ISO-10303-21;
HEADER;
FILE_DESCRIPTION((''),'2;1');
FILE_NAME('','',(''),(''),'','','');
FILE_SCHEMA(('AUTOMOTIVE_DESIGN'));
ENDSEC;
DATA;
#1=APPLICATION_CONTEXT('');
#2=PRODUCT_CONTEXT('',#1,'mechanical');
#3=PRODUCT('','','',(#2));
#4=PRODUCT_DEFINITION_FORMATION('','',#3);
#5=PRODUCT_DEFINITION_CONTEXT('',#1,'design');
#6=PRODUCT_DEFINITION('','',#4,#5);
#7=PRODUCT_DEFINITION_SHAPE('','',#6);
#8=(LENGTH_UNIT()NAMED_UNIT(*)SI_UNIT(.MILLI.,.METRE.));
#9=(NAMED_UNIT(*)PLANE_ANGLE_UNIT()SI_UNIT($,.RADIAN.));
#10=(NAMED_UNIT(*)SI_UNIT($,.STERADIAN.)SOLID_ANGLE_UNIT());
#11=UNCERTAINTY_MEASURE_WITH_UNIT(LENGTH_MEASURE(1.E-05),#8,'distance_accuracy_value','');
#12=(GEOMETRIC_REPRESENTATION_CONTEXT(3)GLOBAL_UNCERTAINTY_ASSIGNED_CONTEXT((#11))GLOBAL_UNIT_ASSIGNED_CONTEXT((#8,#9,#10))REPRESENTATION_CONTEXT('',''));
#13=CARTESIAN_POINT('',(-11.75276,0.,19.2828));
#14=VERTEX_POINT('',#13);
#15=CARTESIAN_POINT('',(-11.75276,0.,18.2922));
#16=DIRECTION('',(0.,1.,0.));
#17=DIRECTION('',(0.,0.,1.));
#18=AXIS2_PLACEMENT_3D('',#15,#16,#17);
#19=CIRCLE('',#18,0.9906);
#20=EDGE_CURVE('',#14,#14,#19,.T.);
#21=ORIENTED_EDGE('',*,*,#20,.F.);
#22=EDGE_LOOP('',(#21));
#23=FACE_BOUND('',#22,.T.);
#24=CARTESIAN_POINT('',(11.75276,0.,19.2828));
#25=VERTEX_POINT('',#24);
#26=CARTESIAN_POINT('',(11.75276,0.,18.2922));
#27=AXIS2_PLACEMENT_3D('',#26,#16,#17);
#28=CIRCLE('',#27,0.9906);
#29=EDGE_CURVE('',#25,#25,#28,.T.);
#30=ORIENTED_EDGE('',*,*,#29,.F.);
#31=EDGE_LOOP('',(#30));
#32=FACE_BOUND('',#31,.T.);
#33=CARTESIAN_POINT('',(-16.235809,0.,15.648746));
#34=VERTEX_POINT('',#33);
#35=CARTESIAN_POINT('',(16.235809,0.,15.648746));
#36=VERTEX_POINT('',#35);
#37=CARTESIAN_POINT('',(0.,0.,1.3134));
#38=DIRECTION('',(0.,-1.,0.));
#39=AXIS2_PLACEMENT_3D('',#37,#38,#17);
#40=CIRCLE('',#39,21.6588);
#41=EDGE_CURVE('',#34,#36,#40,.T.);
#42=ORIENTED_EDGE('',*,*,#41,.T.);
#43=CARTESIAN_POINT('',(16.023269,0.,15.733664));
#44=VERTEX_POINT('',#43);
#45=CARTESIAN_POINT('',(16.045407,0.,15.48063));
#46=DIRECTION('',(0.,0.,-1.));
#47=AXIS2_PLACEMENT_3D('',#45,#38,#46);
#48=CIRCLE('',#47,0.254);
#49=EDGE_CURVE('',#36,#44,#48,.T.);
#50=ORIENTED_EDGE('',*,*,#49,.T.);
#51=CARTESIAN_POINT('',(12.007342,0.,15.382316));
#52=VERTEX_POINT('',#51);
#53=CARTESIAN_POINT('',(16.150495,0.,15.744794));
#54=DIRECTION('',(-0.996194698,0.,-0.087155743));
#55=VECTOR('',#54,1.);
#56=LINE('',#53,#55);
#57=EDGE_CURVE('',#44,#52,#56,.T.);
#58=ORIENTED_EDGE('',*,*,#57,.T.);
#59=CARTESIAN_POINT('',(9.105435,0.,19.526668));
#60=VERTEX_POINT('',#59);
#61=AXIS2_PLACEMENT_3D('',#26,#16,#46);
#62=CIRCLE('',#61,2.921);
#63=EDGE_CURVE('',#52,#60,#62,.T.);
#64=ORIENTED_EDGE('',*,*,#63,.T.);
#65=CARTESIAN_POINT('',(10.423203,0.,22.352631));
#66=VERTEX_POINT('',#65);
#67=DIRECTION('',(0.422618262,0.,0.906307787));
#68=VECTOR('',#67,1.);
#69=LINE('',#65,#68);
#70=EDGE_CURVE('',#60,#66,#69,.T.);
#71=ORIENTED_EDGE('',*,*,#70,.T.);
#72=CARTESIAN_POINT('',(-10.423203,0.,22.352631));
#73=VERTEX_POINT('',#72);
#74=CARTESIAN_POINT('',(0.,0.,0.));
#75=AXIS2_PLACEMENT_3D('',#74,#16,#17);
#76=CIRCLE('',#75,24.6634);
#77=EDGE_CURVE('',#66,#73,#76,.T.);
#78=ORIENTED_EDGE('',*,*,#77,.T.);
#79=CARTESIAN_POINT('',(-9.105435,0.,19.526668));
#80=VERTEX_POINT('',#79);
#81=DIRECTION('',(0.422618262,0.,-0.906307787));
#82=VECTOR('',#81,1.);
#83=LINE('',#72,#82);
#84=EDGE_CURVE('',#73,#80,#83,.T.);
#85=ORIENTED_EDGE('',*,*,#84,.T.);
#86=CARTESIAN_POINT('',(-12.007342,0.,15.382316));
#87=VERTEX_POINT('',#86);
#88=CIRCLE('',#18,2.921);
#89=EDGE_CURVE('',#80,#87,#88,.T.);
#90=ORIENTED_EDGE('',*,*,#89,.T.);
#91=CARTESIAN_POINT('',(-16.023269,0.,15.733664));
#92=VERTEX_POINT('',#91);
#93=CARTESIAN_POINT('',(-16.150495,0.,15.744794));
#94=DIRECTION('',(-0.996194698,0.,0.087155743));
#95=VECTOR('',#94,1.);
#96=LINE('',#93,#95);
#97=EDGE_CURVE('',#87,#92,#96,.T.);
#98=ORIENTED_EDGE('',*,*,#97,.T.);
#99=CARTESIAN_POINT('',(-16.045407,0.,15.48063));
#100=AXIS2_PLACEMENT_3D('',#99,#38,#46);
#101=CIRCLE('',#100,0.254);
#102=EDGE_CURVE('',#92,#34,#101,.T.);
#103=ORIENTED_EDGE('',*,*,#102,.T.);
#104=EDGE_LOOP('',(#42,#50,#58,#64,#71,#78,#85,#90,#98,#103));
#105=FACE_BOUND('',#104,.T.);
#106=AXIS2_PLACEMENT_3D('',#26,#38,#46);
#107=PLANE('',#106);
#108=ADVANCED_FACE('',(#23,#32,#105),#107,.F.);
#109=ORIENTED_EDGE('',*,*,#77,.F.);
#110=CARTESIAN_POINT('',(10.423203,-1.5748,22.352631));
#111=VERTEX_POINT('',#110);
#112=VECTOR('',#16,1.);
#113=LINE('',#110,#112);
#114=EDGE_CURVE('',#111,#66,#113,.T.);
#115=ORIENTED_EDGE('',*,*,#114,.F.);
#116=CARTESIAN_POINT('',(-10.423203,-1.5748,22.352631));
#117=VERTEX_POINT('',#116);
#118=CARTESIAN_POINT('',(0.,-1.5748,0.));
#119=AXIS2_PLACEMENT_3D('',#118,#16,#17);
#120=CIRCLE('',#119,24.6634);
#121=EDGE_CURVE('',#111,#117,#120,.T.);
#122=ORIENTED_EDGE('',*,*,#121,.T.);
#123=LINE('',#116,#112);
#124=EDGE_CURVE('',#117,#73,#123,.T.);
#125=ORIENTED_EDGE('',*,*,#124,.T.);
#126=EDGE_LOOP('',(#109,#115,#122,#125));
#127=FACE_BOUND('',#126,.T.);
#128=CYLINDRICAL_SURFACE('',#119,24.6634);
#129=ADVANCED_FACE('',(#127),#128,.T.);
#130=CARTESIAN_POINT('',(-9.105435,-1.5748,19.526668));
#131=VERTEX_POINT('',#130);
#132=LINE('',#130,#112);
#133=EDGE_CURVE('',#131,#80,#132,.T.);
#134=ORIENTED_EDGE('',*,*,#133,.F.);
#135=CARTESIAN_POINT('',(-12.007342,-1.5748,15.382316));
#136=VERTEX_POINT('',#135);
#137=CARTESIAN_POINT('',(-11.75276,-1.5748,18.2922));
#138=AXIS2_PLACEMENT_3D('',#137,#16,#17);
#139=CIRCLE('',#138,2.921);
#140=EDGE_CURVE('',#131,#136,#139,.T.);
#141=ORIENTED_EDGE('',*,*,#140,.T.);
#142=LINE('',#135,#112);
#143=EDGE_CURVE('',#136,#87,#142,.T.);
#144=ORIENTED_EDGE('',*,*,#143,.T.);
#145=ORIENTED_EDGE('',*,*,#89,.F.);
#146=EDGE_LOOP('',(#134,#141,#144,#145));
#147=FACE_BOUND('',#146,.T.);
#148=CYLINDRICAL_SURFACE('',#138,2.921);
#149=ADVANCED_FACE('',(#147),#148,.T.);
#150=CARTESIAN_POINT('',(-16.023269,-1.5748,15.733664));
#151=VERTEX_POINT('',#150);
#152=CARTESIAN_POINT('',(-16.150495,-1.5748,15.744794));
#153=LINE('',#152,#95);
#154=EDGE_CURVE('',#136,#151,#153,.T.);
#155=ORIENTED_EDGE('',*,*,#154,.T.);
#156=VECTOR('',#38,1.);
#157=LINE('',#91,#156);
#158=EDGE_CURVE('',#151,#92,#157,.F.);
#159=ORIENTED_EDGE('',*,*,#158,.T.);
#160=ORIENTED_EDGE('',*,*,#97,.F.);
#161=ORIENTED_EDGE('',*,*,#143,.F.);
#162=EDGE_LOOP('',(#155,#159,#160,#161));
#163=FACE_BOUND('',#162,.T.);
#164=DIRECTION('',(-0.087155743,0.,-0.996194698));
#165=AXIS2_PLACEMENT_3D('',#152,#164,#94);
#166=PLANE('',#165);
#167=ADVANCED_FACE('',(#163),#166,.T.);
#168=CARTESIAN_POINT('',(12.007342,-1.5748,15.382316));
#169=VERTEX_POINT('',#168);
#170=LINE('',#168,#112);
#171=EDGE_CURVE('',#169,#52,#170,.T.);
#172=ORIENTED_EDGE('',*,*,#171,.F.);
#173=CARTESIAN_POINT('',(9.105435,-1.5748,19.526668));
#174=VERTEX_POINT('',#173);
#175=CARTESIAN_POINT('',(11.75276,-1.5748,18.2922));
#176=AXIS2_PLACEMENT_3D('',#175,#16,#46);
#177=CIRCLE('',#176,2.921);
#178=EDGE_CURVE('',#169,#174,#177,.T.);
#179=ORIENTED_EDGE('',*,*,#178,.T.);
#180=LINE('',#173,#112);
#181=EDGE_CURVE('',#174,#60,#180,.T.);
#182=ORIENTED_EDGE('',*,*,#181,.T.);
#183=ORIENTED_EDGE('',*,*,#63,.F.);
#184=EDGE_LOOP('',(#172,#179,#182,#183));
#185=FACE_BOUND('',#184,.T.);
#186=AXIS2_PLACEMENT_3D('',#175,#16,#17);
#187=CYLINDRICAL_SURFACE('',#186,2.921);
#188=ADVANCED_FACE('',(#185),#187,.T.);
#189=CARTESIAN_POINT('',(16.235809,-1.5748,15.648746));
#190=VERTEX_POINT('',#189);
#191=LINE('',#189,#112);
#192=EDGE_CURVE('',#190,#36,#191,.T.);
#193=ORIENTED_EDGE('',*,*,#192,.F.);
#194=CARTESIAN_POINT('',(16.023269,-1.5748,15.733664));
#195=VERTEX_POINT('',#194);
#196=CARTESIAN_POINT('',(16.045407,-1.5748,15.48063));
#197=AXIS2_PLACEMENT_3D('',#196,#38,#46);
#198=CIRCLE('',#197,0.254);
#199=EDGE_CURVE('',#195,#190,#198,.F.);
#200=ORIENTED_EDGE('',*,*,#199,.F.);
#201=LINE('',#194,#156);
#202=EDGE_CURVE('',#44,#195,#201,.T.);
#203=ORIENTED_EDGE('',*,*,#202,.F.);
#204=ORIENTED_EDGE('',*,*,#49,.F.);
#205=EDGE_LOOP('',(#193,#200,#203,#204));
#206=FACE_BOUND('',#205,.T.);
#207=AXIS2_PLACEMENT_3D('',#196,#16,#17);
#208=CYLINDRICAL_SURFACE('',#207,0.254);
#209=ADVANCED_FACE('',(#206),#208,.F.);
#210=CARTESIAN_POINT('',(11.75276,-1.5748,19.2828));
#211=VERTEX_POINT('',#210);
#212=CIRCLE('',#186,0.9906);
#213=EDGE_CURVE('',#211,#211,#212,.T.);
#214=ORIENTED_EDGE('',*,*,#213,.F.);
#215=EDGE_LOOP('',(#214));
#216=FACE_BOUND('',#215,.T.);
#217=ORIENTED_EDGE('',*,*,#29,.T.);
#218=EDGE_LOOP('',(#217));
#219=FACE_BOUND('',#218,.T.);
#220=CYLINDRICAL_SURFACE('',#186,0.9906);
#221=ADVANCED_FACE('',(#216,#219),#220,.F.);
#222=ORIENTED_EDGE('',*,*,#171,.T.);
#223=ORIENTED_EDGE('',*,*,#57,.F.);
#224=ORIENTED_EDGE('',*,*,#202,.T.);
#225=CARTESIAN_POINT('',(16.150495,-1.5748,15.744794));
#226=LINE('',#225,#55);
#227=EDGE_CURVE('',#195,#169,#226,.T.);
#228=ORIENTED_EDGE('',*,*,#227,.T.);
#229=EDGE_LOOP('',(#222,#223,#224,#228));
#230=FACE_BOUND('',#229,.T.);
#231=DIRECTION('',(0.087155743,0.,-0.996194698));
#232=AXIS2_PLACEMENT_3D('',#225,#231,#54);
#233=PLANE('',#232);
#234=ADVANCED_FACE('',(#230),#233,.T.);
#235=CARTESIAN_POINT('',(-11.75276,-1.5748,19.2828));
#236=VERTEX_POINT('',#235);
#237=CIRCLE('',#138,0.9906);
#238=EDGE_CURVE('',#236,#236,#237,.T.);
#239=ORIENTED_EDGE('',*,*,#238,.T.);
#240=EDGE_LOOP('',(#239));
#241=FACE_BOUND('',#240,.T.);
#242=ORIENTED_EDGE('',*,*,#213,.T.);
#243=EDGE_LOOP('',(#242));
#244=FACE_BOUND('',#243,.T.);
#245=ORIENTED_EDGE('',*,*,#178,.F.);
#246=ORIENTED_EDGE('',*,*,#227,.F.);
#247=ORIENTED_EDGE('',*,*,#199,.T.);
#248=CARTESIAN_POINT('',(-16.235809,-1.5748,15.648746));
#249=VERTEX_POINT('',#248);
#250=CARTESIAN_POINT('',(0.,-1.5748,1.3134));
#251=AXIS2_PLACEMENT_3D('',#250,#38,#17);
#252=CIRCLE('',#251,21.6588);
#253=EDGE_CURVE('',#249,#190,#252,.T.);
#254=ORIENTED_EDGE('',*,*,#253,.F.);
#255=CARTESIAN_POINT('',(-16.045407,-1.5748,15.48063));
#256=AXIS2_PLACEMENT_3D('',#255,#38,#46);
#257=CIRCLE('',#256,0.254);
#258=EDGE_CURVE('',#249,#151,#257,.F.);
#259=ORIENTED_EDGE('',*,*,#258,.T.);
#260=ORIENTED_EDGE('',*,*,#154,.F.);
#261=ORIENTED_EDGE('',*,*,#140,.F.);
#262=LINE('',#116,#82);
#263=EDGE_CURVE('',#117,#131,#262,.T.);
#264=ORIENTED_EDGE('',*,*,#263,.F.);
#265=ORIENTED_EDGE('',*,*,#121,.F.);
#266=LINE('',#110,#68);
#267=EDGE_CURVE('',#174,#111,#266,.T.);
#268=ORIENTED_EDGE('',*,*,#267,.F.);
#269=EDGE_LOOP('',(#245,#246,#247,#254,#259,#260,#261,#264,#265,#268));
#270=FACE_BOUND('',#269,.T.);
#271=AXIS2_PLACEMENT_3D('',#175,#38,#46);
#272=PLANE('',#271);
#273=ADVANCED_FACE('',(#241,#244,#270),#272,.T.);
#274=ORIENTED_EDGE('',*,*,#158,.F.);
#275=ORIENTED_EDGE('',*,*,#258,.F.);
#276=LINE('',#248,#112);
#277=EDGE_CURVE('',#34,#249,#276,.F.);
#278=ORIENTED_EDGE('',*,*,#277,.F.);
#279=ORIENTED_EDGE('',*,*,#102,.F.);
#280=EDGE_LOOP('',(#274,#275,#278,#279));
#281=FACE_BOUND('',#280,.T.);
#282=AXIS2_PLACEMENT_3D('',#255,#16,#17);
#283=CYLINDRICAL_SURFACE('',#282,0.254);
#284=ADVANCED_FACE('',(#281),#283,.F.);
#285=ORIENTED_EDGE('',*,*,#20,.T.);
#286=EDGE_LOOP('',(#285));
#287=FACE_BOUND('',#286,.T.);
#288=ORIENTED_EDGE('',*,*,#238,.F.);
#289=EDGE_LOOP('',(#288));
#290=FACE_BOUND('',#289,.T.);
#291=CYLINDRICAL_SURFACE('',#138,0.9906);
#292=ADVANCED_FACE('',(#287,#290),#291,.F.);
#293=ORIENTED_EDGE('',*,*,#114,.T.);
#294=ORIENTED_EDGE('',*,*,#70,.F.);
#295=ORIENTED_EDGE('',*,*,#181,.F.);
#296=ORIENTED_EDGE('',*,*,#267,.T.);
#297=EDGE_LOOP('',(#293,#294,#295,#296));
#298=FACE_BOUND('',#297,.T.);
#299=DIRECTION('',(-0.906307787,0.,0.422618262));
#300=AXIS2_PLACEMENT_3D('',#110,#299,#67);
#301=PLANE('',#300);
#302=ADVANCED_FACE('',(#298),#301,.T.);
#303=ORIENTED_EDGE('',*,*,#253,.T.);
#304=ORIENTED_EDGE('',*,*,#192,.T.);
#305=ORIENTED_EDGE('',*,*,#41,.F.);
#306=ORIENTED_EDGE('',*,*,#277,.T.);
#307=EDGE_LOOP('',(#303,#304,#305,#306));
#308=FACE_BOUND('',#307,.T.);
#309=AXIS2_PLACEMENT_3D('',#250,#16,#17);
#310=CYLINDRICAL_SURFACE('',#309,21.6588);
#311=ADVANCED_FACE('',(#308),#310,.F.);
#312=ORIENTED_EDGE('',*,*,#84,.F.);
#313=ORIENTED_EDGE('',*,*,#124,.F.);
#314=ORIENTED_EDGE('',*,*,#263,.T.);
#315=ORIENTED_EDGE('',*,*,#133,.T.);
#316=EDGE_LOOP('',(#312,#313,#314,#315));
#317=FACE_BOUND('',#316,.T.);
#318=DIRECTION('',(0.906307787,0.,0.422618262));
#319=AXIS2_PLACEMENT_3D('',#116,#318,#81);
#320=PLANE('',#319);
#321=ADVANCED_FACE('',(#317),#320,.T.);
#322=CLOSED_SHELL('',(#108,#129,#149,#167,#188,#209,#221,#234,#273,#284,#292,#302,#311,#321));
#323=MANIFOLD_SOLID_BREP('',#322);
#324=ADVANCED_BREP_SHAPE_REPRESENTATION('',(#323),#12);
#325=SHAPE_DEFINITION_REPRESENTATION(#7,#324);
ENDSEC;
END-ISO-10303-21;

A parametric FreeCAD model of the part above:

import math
import FreeCAD as App
import Part
import Sketcher
from FreeCAD import Vector
Q = App.Units.Quantity


def edges_at(feature, points):
    """Names of the edges that pass closest to the given points."""
    edges = feature.Shape.Edges
    near = lambda p: min(range(len(edges)), key=lambda i: edges[i].distToShape(Part.Vertex(*p))[0])
    return sorted({f"Edge{near(p) + 1}" for p in points})

doc = App.newDocument("Part")
params = doc.addObject("Spreadsheet::Sheet", "Params")
for row, (alias, value) in enumerate([
    ("sketch1_diameter", "0.078 in"),
    ("sketch1_radius", "0.971 in"),
    ("sketch1_radius2", "0.115 in"),
    ("pad1_length", "0.062 in"),
    ("fillet_radius", "0.01 in"),
], start=1):
    params.set(f"A{row}", alias)
    params.set(f"B{row}", "=" + value)
    params.setAlias(f"B{row}", alias)

body = doc.addObject("PartDesign::Body", "Body")

# Sketch on XZ plane
sketch1 = body.newObject("Sketcher::SketchObject", "Sketch")
sketch1.AttachmentSupport = (doc.getObject("XZ_Plane"), [""])
sketch1.MapMode = "FlatFace"
sketch1.addGeometry([
    Part.LineSegment(Vector(9.105435, 19.526668, 0), Vector(10.423203, 22.352631, 0)),  # 0
    Part.ArcOfCircle(Part.Circle(Vector(0, 0, 0), Vector(0, 0, 1), 24.6634), math.radians(115), math.radians(425)),  # 1
    Part.LineSegment(Vector(-10.423203, 22.352631, 0), Vector(-9.105435, 19.526668, 0)),  # 2
    Part.ArcOfCircle(Part.Circle(Vector(-11.75276, 18.2922, 0), Vector(0, 0, 1), 2.921), math.radians(-95), math.radians(25)),  # 3
    Part.LineSegment(Vector(-12.007342, 15.382316, 0), Vector(-16.150495, 15.744794, 0)),  # 4
    Part.ArcOfCircle(Part.Circle(Vector(0, 1.3134, 0), Vector(0, 0, 1), 21.6588), math.radians(138.217384), math.radians(401.782616)),  # 5
    Part.LineSegment(Vector(16.150495, 15.744794, 0), Vector(12.007342, 15.382316, 0)),  # 6
    Part.ArcOfCircle(Part.Circle(Vector(11.75276, 18.2922, 0), Vector(0, 0, 1), 2.921), math.radians(155), math.radians(275)),  # 7
    Part.Circle(Vector(11.75276, 18.2922, 0), Vector(0, 0, 1), 0.9906),  # 8
    Part.Circle(Vector(-11.75276, 18.2922, 0), Vector(0, 0, 1), 0.9906),  # 9
], False)
sketch1.addConstraint([
    Sketcher.Constraint("Coincident", 0, 2, 1, 2),
    Sketcher.Constraint("Coincident", 1, 1, 2, 1),
    Sketcher.Constraint("Tangent", 2, 2, 3, 2),
    Sketcher.Constraint("Tangent", 3, 1, 4, 1),
    Sketcher.Constraint("Coincident", 4, 2, 5, 1),
    Sketcher.Constraint("Coincident", 5, 2, 6, 1),
    Sketcher.Constraint("Tangent", 6, 2, 7, 2),
    Sketcher.Constraint("Tangent", 7, 1, 0, 1),
    Sketcher.Constraint("Coincident", 1, 3, -1, 1),
    Sketcher.Constraint("Coincident", 8, 3, 7, 3),
    Sketcher.Constraint("Coincident", 9, 3, 3, 3),
    Sketcher.Constraint("Equal", 3, 7),
    Sketcher.Constraint("Equal", 8, 9),
    Sketcher.Constraint("Symmetric", 3, 3, 7, 3, -2),
    Sketcher.Constraint("Symmetric", 4, 2, 5, 2, -2),
    Sketcher.Constraint("Horizontal", 0, 2, 1, 1),
    Sketcher.Constraint("Diameter", 8, Q("0.078 in")),
    Sketcher.Constraint("Angle", 0, Q("65 deg")),
    Sketcher.Constraint("Angle", 4, Q("175 deg")),
    Sketcher.Constraint("Radius", 1, Q("0.971 in")),
    Sketcher.Constraint("Radius", 3, Q("0.115 in")),
    Sketcher.Constraint("Radius", 5, Q("21.6588 mm")),
    Sketcher.Constraint("DistanceY", -1, 1, 3, 3, Q("18.2922 mm")),
    Sketcher.Constraint("DistanceY", -1, 1, 5, 3, Q("1.3134 mm")),
    Sketcher.Constraint("Distance", 4, Q("4.158979 mm")),
])
sketch1.setExpression("Constraints[16]", "Params.sketch1_diameter")
sketch1.setExpression("Constraints[19]", "Params.sketch1_radius")
sketch1.setExpression("Constraints[20]", "Params.sketch1_radius2")
pad1 = body.newObject("PartDesign::Pad", "Pad")
pad1.Profile = sketch1
pad1.setExpression("Length", "Params.pad1_length")
doc.recompute()

fillet = body.newObject("PartDesign::Fillet", "Fillet")
fillet.Base = (pad1, edges_at(pad1, [(16.15, -0.787, 15.745), (-16.15, -0.787, 15.745)]))
fillet.setExpression("Radius", "Params.fillet_radius")

doc.recompute()
